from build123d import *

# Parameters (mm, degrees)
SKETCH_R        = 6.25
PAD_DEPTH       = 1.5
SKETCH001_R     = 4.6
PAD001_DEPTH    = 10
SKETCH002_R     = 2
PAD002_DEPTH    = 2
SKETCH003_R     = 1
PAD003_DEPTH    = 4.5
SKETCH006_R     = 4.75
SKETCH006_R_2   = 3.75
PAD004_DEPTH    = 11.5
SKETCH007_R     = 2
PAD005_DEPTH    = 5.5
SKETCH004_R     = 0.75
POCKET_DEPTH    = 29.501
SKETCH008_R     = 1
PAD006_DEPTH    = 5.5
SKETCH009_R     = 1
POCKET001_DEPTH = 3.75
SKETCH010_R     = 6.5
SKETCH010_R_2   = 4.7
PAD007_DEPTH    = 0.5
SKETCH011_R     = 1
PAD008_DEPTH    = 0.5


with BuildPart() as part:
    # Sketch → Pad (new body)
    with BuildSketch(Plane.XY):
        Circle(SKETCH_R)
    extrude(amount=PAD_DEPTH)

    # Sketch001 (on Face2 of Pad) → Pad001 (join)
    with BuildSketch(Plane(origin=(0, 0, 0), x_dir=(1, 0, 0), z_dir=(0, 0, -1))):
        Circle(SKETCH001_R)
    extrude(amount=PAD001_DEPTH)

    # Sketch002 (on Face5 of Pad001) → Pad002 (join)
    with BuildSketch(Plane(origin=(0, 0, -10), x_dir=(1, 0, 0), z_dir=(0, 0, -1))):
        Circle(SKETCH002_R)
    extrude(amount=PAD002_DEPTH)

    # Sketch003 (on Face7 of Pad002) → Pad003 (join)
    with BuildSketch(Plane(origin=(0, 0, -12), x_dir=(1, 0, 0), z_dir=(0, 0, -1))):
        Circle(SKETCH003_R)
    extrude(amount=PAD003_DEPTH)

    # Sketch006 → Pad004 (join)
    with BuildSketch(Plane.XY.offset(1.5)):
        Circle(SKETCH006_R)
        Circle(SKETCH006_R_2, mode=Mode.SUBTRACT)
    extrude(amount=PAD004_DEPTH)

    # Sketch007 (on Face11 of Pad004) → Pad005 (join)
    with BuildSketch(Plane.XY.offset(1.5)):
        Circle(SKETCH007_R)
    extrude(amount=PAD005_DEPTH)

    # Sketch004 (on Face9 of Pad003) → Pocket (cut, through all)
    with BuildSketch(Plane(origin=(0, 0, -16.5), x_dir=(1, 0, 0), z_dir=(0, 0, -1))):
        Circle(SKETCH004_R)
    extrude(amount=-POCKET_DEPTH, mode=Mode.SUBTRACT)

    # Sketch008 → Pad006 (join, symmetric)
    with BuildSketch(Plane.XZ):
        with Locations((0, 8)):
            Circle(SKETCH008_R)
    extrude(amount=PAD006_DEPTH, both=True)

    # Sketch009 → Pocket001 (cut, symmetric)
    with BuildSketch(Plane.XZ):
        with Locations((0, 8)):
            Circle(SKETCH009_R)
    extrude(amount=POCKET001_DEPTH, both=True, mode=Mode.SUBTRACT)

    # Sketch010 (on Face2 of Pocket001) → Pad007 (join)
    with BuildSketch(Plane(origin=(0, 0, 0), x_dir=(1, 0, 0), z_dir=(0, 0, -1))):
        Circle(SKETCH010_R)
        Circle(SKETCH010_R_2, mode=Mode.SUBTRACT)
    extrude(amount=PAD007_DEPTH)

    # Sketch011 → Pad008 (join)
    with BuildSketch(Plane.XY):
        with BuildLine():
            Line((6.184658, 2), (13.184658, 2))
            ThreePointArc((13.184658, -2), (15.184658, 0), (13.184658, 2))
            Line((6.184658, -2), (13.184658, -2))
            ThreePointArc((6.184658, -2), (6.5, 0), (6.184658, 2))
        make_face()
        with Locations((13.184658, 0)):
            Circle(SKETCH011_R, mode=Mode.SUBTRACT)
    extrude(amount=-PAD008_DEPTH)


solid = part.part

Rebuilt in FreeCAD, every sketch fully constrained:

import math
import FreeCAD as App
import Part
import Sketcher

V = App.Vector
Q = App.Units.Quantity

doc = App.newDocument("Part")
body = doc.addObject("PartDesign::Body", "Body")

sketch1 = body.newObject("Sketcher::SketchObject", "Sketch")
sketch1.AttachmentSupport = (doc.getObject("XY_Plane"), [""])
sketch1.MapMode = "FlatFace"
sketch1.addGeometry(Part.Circle(V(0, 0, 0), V(0, 0, 1), 6), False)
sketch1.addConstraint([
    Sketcher.Constraint("Coincident", 0, 3, -1, 1),
    Sketcher.Constraint("Diameter", 0, Q("12.5 mm")),
])
pad1 = body.newObject("PartDesign::Pad", "Pad")
pad1.Profile = sketch1
pad1.Length = 1.5

sketch2 = body.newObject("Sketcher::SketchObject", "Sketch001")
sketch2.AttachmentSupport = (doc.getObject("XY_Plane"), [""])
sketch2.MapMode = "FlatFace"
sketch2.addGeometry(Part.Circle(V(0, 0, 0), V(0, 0, 1), 4.6), False)
sketch2.addConstraint([
    Sketcher.Constraint("Coincident", 0, 3, -1, 1),
    Sketcher.Constraint("Diameter", 0, Q("9.2 mm")),
])
pad2 = body.newObject("PartDesign::Pad", "Pad001")
pad2.Profile = sketch2
pad2.Length = 10
pad2.Reversed = True

sketch3 = body.newObject("Sketcher::SketchObject", "Sketch002")
sketch3.AttachmentSupport = (doc.getObject("XY_Plane"), [""])
sketch3.MapMode = "FlatFace"
sketch3.AttachmentOffset = App.Placement(V(0, 0, -10), App.Rotation())
sketch3.addGeometry(Part.Circle(V(0, 0, 0), V(0, 0, 1), 2), False)
sketch3.addConstraint([
    Sketcher.Constraint("Coincident", 0, 3, -1, 1),
    Sketcher.Constraint("Diameter", 0, Q("4 mm")),
])
pad3 = body.newObject("PartDesign::Pad", "Pad002")
pad3.Profile = sketch3
pad3.Length = 2
pad3.Reversed = True

sketch4 = body.newObject("Sketcher::SketchObject", "Sketch003")
sketch4.AttachmentSupport = (doc.getObject("XY_Plane"), [""])
sketch4.MapMode = "FlatFace"
sketch4.AttachmentOffset = App.Placement(V(0, 0, -12), App.Rotation())
sketch4.addGeometry(Part.Circle(V(0, 0, 0), V(0, 0, 1), 1), False)
sketch4.addConstraint([
    Sketcher.Constraint("Coincident", 0, 3, -1, 1),
    Sketcher.Constraint("Diameter", 0, Q("2 mm")),
])
pad4 = body.newObject("PartDesign::Pad", "Pad003")
pad4.Profile = sketch4
pad4.Length = 4.5
pad4.Reversed = True

sketch5 = body.newObject("Sketcher::SketchObject", "Sketch004")
sketch5.AttachmentSupport = (doc.getObject("XY_Plane"), [""])
sketch5.MapMode = "FlatFace"
sketch5.AttachmentOffset = App.Placement(V(0, 0, 1.5), App.Rotation())
sketch5.addGeometry([
    Part.Circle(V(0, 0, 0), V(0, 0, 1), 4.8),
    Part.Circle(V(0, 0, 0), V(0, 0, 1), 3.8),
], False)
sketch5.addConstraint([
    Sketcher.Constraint("Coincident", 0, 3, -1, 1),
    Sketcher.Constraint("Coincident", 1, 3, -1, 1),
    Sketcher.Constraint("Diameter", 0, Q("9.5 mm")),
    Sketcher.Constraint("Diameter", 1, Q("7.5 mm")),
])
pad5 = body.newObject("PartDesign::Pad", "Pad004")
pad5.Profile = sketch5
pad5.Length = 11.5

sketch6 = body.newObject("Sketcher::SketchObject", "Sketch005")
sketch6.AttachmentSupport = (doc.getObject("XY_Plane"), [""])
sketch6.MapMode = "FlatFace"
sketch6.AttachmentOffset = App.Placement(V(0, 0, 1.5), App.Rotation())
sketch6.addGeometry(Part.Circle(V(0, 0, 0), V(0, 0, 1), 2), False)
sketch6.addConstraint([
    Sketcher.Constraint("Coincident", 0, 3, -1, 1),
    Sketcher.Constraint("Diameter", 0, Q("4 mm")),
])
pad6 = body.newObject("PartDesign::Pad", "Pad005")
pad6.Profile = sketch6
pad6.Length = 5.5

sketch7 = body.newObject("Sketcher::SketchObject", "Sketch006")
sketch7.AttachmentSupport = (doc.getObject("XY_Plane"), [""])
sketch7.MapMode = "FlatFace"
sketch7.AttachmentOffset = App.Placement(V(0, 0, -16.5), App.Rotation())
sketch7.addGeometry(Part.Circle(V(0, 0, 0), V(0, 0, 1), 0.8), False)
sketch7.addConstraint([
    Sketcher.Constraint("Coincident", 0, 3, -1, 1),
    Sketcher.Constraint("Diameter", 0, Q("1.5 mm")),
])
pocket1 = body.newObject("PartDesign::Pocket", "Pocket")
pocket1.Profile = sketch7
pocket1.Type = "ThroughAll"
pocket1.Reversed = True

sketch8 = body.newObject("Sketcher::SketchObject", "Sketch007")
sketch8.AttachmentSupport = (doc.getObject("XZ_Plane"), [""])
sketch8.MapMode = "FlatFace"
sketch8.addGeometry(Part.Circle(V(0, 8, 0), V(0, 0, 1), 1), False)
sketch8.addConstraint([
    Sketcher.Constraint("PointOnObject", 0, 3, -2),
    Sketcher.Constraint("Diameter", 0, Q("2 mm")),
    Sketcher.Constraint("DistanceY", -1, 1, 0, 3, Q("8 mm")),
])
pad7 = body.newObject("PartDesign::Pad", "Pad006")
pad7.Profile = sketch8
pad7.Length = 11
pad7.Midplane = True

sketch9 = body.newObject("Sketcher::SketchObject", "Sketch008")
sketch9.AttachmentSupport = (doc.getObject("XZ_Plane"), [""])
sketch9.MapMode = "FlatFace"
sketch9.addGeometry(Part.Circle(V(0, 8, 0), V(0, 0, 1), 1), False)
sketch9.addConstraint([
    Sketcher.Constraint("PointOnObject", 0, 3, -2),
    Sketcher.Constraint("Diameter", 0, Q("2 mm")),
    Sketcher.Constraint("DistanceY", -1, 1, 0, 3, Q("8 mm")),
])
pocket2 = body.newObject("PartDesign::Pocket", "Pocket001")
pocket2.Profile = sketch9
pocket2.Length = 7.5
pocket2.Midplane = True

sketch10 = body.newObject("Sketcher::SketchObject", "Sketch009")
sketch10.AttachmentSupport = (doc.getObject("XY_Plane"), [""])
sketch10.MapMode = "FlatFace"
sketch10.addGeometry([
    Part.Circle(V(0, 0, 0), V(0, 0, 1), 6.5),
    Part.Circle(V(0, 0, 0), V(0, 0, 1), 4.7),
], False)
sketch10.addConstraint([
    Sketcher.Constraint("Coincident", 0, 3, -1, 1),
    Sketcher.Constraint("Coincident", 1, 3, -1, 1),
    Sketcher.Constraint("Diameter", 0, Q("13 mm")),
    Sketcher.Constraint("Diameter", 1, Q("9.4 mm")),
])
pad8 = body.newObject("PartDesign::Pad", "Pad007")
pad8.Profile = sketch10
pad8.Length = 0.5
pad8.Reversed = True

sketch11 = body.newObject("Sketcher::SketchObject", "Sketch010")
sketch11.AttachmentSupport = (doc.getObject("XY_Plane"), [""])
sketch11.MapMode = "FlatFace"
sketch11.addGeometry([
    Part.LineSegment(V(13.2, 2, 0), V(6.2, 2, 0)),
    Part.ArcOfCircle(Part.Circle(V(0, 0, 0), V(0, 0, 1), 6.5), math.radians(-18), math.radians(18)),
    Part.LineSegment(V(6.2, -2, 0), V(13.2, -2, 0)),
    Part.ArcOfCircle(Part.Circle(V(13.2, 0, 0), V(0, 0, 1), 2), math.radians(-90), math.radians(90)),
    Part.Circle(V(13.2, 0, 0), V(0, 0, 1), 1),
], False)
sketch11.addConstraint([
    Sketcher.Constraint("Coincident", 0, 2, 1, 2),
    Sketcher.Constraint("Coincident", 1, 1, 2, 1),
    Sketcher.Constraint("Tangent", 2, 2, 3, 1),
    Sketcher.Constraint("Tangent", 3, 2, 0, 1),
    Sketcher.Constraint("Horizontal", 0),
    Sketcher.Constraint("Horizontal", 2),
    Sketcher.Constraint("Coincident", 1, 3, -1, 1),
    Sketcher.Constraint("Coincident", 4, 3, 3, 3),
    Sketcher.Constraint("PointOnObject", 3, 3, -1),
    Sketcher.Constraint("Diameter", 4, Q("2 mm")),
    Sketcher.Constraint("Radius", 3, Q("2 mm")),
    Sketcher.Constraint("DistanceX", 0, 2, 0, 1, Q("7 mm")),
    Sketcher.Constraint("Radius", 1, Q("6.499991 mm")),
])
pad9 = body.newObject("PartDesign::Pad", "Pad008")
pad9.Profile = sketch11
pad9.Length = 0.5
pad9.Reversed = True

doc.recompute()
